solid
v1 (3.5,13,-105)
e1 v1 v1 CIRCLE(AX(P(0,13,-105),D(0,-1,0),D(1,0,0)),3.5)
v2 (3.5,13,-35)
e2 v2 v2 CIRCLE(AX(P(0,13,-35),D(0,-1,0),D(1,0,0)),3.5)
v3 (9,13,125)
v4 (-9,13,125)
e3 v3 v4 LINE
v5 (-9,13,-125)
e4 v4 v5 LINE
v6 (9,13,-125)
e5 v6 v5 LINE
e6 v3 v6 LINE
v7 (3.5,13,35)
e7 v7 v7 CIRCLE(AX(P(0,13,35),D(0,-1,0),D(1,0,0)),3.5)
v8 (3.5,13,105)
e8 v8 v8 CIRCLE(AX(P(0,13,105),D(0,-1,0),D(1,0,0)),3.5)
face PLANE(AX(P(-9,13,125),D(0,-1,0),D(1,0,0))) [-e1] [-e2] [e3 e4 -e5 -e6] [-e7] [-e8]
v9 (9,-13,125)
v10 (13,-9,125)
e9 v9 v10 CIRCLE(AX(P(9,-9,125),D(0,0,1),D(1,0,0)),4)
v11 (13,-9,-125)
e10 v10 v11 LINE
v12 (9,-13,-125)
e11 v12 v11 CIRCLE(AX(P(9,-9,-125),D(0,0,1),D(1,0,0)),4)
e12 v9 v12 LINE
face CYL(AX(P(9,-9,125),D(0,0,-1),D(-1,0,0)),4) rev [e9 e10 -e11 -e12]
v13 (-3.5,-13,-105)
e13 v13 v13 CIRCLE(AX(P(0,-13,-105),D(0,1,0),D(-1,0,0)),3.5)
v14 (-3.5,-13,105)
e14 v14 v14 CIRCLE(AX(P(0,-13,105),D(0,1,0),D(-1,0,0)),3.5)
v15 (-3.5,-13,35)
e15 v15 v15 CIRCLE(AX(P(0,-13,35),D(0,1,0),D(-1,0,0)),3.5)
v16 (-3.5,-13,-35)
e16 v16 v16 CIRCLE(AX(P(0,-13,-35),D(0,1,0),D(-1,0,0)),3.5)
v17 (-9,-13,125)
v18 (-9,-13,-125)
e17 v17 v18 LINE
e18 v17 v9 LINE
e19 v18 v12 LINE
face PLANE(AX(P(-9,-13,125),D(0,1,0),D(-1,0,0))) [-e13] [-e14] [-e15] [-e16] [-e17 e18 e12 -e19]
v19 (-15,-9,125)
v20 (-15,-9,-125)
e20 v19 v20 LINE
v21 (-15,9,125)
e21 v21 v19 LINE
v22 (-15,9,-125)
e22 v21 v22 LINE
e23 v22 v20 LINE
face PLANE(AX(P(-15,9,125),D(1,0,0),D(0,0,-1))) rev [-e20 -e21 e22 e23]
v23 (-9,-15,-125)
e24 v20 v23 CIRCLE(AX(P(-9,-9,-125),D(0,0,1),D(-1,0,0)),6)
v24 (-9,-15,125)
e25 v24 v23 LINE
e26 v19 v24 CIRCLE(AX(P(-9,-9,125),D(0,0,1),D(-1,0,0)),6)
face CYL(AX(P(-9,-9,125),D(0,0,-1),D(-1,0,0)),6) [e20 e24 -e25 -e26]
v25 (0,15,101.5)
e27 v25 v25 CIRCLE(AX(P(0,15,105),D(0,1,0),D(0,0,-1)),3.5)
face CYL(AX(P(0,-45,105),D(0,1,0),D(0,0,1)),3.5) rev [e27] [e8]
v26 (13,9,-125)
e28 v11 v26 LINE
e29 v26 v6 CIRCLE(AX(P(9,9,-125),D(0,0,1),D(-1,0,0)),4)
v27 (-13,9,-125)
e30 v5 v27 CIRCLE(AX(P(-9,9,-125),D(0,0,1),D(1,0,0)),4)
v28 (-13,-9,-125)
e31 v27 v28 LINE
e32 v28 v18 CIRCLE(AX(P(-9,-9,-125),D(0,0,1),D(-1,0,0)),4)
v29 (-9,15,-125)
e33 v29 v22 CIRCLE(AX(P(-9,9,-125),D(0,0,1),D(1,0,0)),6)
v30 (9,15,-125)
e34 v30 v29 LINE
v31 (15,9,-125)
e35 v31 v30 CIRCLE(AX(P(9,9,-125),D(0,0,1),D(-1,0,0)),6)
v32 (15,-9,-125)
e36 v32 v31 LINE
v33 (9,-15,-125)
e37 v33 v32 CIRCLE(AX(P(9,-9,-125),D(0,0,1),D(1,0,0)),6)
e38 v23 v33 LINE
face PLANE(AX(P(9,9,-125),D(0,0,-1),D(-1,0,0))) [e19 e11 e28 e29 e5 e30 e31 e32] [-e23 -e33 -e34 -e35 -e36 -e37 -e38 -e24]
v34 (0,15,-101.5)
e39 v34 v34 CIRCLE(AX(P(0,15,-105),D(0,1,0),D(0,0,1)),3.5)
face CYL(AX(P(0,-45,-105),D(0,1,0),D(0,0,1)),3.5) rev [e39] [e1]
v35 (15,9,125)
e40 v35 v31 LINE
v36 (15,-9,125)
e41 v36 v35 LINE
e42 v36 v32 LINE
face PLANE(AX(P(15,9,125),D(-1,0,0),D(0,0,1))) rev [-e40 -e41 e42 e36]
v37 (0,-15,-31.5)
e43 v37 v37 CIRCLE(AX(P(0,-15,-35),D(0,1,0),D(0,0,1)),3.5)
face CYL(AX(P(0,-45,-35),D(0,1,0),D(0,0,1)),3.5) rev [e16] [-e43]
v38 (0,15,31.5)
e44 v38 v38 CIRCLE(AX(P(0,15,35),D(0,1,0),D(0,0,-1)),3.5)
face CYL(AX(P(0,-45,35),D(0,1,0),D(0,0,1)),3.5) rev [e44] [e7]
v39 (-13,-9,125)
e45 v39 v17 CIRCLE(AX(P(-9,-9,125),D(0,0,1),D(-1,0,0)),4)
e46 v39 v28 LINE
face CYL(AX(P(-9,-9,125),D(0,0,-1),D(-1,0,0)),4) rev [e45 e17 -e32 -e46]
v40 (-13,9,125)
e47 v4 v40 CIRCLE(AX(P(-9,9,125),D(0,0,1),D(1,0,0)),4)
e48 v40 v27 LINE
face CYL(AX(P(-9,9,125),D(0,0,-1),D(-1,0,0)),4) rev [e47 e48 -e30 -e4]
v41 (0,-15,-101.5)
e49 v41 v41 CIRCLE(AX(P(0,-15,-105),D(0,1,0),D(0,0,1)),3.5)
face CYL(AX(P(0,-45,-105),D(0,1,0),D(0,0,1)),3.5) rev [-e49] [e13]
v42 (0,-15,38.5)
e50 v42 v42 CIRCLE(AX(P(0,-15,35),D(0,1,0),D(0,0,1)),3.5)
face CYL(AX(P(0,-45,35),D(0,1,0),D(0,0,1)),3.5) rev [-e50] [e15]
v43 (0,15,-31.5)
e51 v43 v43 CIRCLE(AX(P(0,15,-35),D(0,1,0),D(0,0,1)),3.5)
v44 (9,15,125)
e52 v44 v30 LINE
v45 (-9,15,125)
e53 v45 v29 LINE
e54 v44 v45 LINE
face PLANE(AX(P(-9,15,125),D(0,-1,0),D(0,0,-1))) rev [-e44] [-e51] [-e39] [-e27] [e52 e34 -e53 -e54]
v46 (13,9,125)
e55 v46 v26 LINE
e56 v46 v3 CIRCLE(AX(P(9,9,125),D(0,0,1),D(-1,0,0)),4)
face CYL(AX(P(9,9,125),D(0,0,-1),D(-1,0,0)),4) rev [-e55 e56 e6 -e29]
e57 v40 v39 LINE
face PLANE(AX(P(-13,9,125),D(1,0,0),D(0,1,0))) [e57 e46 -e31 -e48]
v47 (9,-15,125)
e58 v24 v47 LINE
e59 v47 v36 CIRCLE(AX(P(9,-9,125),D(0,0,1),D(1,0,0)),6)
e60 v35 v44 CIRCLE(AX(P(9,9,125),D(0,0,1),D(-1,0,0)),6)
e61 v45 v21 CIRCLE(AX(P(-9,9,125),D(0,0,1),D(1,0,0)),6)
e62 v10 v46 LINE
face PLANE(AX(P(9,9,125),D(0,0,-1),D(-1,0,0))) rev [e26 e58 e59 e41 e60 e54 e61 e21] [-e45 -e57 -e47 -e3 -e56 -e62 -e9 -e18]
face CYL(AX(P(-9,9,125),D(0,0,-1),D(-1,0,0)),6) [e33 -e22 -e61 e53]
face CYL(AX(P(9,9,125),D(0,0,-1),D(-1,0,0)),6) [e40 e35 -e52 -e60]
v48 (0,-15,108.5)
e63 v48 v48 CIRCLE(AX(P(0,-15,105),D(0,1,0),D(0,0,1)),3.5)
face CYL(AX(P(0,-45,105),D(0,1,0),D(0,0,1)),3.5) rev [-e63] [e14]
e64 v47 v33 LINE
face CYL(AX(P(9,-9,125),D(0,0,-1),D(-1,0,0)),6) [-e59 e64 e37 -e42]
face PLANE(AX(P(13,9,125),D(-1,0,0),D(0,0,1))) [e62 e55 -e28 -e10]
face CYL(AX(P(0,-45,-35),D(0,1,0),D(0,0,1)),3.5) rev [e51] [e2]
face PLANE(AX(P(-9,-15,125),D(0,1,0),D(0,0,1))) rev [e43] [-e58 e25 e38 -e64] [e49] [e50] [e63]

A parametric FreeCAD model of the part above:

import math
import FreeCAD as App
import Part
import Sketcher

V = App.Vector

doc = App.newDocument("Part")
body = doc.addObject("PartDesign::Body", "Body")

# Sketch on XY plane
sketch1 = body.newObject("Sketcher::SketchObject", "Sketch")
sketch1.AttachmentSupport = (doc.getObject("XY_Plane"), [""])
sketch1.MapMode = "FlatFace"
sketch1.addGeometry([
    Part.LineSegment(V(9, 15, 0), V(-9, 15, 0)),  # 0
    Part.ArcOfCircle(Part.Circle(V(-9, 9, 0), V(0, 0, 1), 6), math.radians(90), math.radians(180)),  # 1
    Part.LineSegment(V(-15, 9, 0), V(-15, -9, 0)),  # 2
    Part.ArcOfCircle(Part.Circle(V(-9, -9, 0), V(0, 0, 1), 6), math.radians(180), math.radians(270)),  # 3
    Part.LineSegment(V(-9, -15, 0), V(9, -15, 0)),  # 4
    Part.ArcOfCircle(Part.Circle(V(9, -9, 0), V(0, 0, 1), 6), math.radians(-90), math.radians(0)),  # 5
    Part.LineSegment(V(15, -9, 0), V(15, 9, 0)),  # 6
    Part.ArcOfCircle(Part.Circle(V(9, 9, 0), V(0, 0, 1), 6), math.radians(0), math.radians(90)),  # 7
    Part.ArcOfCircle(Part.Circle(V(-9, 9, 0), V(0, 0, 1), 4), math.radians(90), math.radians(180)),  # 8
    Part.LineSegment(V(-9, 13, 0), V(9, 13, 0)),  # 9
    Part.ArcOfCircle(Part.Circle(V(9, 9, 0), V(0, 0, 1), 4), math.radians(0), math.radians(90)),  # 10
    Part.LineSegment(V(13, 9, 0), V(13, -9, 0)),  # 11
    Part.ArcOfCircle(Part.Circle(V(9, -9, 0), V(0, 0, 1), 4), math.radians(-90), math.radians(0)),  # 12
    Part.LineSegment(V(9, -13, 0), V(-9, -13, 0)),  # 13
    Part.ArcOfCircle(Part.Circle(V(-9, -9, 0), V(0, 0, 1), 4), math.radians(180), math.radians(270)),  # 14
    Part.LineSegment(V(-13, -9, 0), V(-13, 9, 0)),  # 15
], False)
sketch1.addConstraint([
    Sketcher.Constraint("Tangent", 0, 2, 1, 1),
    Sketcher.Constraint("Tangent", 1, 2, 2, 1),
    Sketcher.Constraint("Tangent", 2, 2, 3, 1),
    Sketcher.Constraint("Tangent", 3, 2, 4, 1),
    Sketcher.Constraint("Tangent", 4, 2, 5, 1),
    Sketcher.Constraint("Tangent", 5, 2, 6, 1),
    Sketcher.Constraint("Tangent", 6, 2, 7, 1),
    Sketcher.Constraint("Tangent", 7, 2, 0, 1),
    Sketcher.Constraint("Tangent", 8, 1, 9, 1),
    Sketcher.Constraint("Tangent", 9, 2, 10, 2),
    Sketcher.Constraint("Tangent", 10, 1, 11, 1),
    Sketcher.Constraint("Tangent", 11, 2, 12, 2),
    Sketcher.Constraint("Tangent", 12, 1, 13, 1),
    Sketcher.Constraint("Tangent", 13, 2, 14, 2),
    Sketcher.Constraint("Tangent", 14, 1, 15, 1),
    Sketcher.Constraint("Tangent", 15, 2, 8, 2),
    Sketcher.Constraint("Horizontal", 0),
    Sketcher.Constraint("Vertical", 2),
    Sketcher.Constraint("Horizontal", 4),
    Sketcher.Constraint("Vertical", 6),
    Sketcher.Constraint("Horizontal", 9),
    Sketcher.Constraint("Vertical", 11),
    Sketcher.Constraint("Horizontal", 13),
    Sketcher.Constraint("Vertical", 15),
    Sketcher.Constraint("Coincident", 8, 3, 1, 3),
    Sketcher.Constraint("Coincident", 10, 3, 7, 3),
    Sketcher.Constraint("Coincident", 12, 3, 5, 3),
    Sketcher.Constraint("Equal", 1, 3),
    Sketcher.Constraint("Equal", 3, 5),
    Sketcher.Constraint("Equal", 5, 7),
    Sketcher.Constraint("Equal", 12, 14),
    Sketcher.Constraint("Symmetric", 1, 3, 5, 3, -1, 1),
    Sketcher.Constraint("Equal", 13, 2),
    Sketcher.Constraint("Radius", 1, 6.0),
    Sketcher.Constraint("Radius", 8, 4.0),
    Sketcher.Constraint("DistanceX", 0, 2, 0, 1, 18.0),
])
pad1 = body.newObject("PartDesign::Pad", "Pad")
pad1.Profile = sketch1
pad1.Length = 250
pad1.Midplane = True

# Sketch on XZ plane
sketch2 = body.newObject("Sketcher::SketchObject", "Sketch001")
sketch2.AttachmentSupport = (doc.getObject("XZ_Plane"), [""])
sketch2.MapMode = "FlatFace"
sketch2.AttachmentOffset = App.Placement(V(0, 0, -15), App.Rotation())
sketch2.addGeometry([
    Part.Circle(V(0, -105, 0), V(0, 0, 1), 3.5),
    Part.Circle(V(0, -35, 0), V(0, 0, 1), 3.5),
    Part.Circle(V(0, 35, 0), V(0, 0, 1), 3.5),
    Part.Circle(V(0, 105, 0), V(0, 0, 1), 3.5),
], False)
sketch2.addConstraint([
    Sketcher.Constraint("Equal", 0, 1),
    Sketcher.Constraint("Equal", 1, 2),
    Sketcher.Constraint("Equal", 2, 3),
    Sketcher.Constraint("Symmetric", 1, 3, 2, 3, -1, 1),
    Sketcher.Constraint("Symmetric", 0, 3, 3, 3, -1, 1),
    Sketcher.Constraint("PointOnObject", 0, 3, -2),
    Sketcher.Constraint("PointOnObject", 1, 3, -2),
    Sketcher.Constraint("Diameter", 0, 7.0),
    Sketcher.Constraint("DistanceY", 0, 3, -1, 1, 105.0),
    Sketcher.Constraint("DistanceY", 1, 3, -1, 1, 35.0),
])
pocket1 = body.newObject("PartDesign::Pocket", "Pocket")
pocket1.Profile = sketch2
pocket1.Length = 60
pocket1.Reversed = True

doc.recompute()
